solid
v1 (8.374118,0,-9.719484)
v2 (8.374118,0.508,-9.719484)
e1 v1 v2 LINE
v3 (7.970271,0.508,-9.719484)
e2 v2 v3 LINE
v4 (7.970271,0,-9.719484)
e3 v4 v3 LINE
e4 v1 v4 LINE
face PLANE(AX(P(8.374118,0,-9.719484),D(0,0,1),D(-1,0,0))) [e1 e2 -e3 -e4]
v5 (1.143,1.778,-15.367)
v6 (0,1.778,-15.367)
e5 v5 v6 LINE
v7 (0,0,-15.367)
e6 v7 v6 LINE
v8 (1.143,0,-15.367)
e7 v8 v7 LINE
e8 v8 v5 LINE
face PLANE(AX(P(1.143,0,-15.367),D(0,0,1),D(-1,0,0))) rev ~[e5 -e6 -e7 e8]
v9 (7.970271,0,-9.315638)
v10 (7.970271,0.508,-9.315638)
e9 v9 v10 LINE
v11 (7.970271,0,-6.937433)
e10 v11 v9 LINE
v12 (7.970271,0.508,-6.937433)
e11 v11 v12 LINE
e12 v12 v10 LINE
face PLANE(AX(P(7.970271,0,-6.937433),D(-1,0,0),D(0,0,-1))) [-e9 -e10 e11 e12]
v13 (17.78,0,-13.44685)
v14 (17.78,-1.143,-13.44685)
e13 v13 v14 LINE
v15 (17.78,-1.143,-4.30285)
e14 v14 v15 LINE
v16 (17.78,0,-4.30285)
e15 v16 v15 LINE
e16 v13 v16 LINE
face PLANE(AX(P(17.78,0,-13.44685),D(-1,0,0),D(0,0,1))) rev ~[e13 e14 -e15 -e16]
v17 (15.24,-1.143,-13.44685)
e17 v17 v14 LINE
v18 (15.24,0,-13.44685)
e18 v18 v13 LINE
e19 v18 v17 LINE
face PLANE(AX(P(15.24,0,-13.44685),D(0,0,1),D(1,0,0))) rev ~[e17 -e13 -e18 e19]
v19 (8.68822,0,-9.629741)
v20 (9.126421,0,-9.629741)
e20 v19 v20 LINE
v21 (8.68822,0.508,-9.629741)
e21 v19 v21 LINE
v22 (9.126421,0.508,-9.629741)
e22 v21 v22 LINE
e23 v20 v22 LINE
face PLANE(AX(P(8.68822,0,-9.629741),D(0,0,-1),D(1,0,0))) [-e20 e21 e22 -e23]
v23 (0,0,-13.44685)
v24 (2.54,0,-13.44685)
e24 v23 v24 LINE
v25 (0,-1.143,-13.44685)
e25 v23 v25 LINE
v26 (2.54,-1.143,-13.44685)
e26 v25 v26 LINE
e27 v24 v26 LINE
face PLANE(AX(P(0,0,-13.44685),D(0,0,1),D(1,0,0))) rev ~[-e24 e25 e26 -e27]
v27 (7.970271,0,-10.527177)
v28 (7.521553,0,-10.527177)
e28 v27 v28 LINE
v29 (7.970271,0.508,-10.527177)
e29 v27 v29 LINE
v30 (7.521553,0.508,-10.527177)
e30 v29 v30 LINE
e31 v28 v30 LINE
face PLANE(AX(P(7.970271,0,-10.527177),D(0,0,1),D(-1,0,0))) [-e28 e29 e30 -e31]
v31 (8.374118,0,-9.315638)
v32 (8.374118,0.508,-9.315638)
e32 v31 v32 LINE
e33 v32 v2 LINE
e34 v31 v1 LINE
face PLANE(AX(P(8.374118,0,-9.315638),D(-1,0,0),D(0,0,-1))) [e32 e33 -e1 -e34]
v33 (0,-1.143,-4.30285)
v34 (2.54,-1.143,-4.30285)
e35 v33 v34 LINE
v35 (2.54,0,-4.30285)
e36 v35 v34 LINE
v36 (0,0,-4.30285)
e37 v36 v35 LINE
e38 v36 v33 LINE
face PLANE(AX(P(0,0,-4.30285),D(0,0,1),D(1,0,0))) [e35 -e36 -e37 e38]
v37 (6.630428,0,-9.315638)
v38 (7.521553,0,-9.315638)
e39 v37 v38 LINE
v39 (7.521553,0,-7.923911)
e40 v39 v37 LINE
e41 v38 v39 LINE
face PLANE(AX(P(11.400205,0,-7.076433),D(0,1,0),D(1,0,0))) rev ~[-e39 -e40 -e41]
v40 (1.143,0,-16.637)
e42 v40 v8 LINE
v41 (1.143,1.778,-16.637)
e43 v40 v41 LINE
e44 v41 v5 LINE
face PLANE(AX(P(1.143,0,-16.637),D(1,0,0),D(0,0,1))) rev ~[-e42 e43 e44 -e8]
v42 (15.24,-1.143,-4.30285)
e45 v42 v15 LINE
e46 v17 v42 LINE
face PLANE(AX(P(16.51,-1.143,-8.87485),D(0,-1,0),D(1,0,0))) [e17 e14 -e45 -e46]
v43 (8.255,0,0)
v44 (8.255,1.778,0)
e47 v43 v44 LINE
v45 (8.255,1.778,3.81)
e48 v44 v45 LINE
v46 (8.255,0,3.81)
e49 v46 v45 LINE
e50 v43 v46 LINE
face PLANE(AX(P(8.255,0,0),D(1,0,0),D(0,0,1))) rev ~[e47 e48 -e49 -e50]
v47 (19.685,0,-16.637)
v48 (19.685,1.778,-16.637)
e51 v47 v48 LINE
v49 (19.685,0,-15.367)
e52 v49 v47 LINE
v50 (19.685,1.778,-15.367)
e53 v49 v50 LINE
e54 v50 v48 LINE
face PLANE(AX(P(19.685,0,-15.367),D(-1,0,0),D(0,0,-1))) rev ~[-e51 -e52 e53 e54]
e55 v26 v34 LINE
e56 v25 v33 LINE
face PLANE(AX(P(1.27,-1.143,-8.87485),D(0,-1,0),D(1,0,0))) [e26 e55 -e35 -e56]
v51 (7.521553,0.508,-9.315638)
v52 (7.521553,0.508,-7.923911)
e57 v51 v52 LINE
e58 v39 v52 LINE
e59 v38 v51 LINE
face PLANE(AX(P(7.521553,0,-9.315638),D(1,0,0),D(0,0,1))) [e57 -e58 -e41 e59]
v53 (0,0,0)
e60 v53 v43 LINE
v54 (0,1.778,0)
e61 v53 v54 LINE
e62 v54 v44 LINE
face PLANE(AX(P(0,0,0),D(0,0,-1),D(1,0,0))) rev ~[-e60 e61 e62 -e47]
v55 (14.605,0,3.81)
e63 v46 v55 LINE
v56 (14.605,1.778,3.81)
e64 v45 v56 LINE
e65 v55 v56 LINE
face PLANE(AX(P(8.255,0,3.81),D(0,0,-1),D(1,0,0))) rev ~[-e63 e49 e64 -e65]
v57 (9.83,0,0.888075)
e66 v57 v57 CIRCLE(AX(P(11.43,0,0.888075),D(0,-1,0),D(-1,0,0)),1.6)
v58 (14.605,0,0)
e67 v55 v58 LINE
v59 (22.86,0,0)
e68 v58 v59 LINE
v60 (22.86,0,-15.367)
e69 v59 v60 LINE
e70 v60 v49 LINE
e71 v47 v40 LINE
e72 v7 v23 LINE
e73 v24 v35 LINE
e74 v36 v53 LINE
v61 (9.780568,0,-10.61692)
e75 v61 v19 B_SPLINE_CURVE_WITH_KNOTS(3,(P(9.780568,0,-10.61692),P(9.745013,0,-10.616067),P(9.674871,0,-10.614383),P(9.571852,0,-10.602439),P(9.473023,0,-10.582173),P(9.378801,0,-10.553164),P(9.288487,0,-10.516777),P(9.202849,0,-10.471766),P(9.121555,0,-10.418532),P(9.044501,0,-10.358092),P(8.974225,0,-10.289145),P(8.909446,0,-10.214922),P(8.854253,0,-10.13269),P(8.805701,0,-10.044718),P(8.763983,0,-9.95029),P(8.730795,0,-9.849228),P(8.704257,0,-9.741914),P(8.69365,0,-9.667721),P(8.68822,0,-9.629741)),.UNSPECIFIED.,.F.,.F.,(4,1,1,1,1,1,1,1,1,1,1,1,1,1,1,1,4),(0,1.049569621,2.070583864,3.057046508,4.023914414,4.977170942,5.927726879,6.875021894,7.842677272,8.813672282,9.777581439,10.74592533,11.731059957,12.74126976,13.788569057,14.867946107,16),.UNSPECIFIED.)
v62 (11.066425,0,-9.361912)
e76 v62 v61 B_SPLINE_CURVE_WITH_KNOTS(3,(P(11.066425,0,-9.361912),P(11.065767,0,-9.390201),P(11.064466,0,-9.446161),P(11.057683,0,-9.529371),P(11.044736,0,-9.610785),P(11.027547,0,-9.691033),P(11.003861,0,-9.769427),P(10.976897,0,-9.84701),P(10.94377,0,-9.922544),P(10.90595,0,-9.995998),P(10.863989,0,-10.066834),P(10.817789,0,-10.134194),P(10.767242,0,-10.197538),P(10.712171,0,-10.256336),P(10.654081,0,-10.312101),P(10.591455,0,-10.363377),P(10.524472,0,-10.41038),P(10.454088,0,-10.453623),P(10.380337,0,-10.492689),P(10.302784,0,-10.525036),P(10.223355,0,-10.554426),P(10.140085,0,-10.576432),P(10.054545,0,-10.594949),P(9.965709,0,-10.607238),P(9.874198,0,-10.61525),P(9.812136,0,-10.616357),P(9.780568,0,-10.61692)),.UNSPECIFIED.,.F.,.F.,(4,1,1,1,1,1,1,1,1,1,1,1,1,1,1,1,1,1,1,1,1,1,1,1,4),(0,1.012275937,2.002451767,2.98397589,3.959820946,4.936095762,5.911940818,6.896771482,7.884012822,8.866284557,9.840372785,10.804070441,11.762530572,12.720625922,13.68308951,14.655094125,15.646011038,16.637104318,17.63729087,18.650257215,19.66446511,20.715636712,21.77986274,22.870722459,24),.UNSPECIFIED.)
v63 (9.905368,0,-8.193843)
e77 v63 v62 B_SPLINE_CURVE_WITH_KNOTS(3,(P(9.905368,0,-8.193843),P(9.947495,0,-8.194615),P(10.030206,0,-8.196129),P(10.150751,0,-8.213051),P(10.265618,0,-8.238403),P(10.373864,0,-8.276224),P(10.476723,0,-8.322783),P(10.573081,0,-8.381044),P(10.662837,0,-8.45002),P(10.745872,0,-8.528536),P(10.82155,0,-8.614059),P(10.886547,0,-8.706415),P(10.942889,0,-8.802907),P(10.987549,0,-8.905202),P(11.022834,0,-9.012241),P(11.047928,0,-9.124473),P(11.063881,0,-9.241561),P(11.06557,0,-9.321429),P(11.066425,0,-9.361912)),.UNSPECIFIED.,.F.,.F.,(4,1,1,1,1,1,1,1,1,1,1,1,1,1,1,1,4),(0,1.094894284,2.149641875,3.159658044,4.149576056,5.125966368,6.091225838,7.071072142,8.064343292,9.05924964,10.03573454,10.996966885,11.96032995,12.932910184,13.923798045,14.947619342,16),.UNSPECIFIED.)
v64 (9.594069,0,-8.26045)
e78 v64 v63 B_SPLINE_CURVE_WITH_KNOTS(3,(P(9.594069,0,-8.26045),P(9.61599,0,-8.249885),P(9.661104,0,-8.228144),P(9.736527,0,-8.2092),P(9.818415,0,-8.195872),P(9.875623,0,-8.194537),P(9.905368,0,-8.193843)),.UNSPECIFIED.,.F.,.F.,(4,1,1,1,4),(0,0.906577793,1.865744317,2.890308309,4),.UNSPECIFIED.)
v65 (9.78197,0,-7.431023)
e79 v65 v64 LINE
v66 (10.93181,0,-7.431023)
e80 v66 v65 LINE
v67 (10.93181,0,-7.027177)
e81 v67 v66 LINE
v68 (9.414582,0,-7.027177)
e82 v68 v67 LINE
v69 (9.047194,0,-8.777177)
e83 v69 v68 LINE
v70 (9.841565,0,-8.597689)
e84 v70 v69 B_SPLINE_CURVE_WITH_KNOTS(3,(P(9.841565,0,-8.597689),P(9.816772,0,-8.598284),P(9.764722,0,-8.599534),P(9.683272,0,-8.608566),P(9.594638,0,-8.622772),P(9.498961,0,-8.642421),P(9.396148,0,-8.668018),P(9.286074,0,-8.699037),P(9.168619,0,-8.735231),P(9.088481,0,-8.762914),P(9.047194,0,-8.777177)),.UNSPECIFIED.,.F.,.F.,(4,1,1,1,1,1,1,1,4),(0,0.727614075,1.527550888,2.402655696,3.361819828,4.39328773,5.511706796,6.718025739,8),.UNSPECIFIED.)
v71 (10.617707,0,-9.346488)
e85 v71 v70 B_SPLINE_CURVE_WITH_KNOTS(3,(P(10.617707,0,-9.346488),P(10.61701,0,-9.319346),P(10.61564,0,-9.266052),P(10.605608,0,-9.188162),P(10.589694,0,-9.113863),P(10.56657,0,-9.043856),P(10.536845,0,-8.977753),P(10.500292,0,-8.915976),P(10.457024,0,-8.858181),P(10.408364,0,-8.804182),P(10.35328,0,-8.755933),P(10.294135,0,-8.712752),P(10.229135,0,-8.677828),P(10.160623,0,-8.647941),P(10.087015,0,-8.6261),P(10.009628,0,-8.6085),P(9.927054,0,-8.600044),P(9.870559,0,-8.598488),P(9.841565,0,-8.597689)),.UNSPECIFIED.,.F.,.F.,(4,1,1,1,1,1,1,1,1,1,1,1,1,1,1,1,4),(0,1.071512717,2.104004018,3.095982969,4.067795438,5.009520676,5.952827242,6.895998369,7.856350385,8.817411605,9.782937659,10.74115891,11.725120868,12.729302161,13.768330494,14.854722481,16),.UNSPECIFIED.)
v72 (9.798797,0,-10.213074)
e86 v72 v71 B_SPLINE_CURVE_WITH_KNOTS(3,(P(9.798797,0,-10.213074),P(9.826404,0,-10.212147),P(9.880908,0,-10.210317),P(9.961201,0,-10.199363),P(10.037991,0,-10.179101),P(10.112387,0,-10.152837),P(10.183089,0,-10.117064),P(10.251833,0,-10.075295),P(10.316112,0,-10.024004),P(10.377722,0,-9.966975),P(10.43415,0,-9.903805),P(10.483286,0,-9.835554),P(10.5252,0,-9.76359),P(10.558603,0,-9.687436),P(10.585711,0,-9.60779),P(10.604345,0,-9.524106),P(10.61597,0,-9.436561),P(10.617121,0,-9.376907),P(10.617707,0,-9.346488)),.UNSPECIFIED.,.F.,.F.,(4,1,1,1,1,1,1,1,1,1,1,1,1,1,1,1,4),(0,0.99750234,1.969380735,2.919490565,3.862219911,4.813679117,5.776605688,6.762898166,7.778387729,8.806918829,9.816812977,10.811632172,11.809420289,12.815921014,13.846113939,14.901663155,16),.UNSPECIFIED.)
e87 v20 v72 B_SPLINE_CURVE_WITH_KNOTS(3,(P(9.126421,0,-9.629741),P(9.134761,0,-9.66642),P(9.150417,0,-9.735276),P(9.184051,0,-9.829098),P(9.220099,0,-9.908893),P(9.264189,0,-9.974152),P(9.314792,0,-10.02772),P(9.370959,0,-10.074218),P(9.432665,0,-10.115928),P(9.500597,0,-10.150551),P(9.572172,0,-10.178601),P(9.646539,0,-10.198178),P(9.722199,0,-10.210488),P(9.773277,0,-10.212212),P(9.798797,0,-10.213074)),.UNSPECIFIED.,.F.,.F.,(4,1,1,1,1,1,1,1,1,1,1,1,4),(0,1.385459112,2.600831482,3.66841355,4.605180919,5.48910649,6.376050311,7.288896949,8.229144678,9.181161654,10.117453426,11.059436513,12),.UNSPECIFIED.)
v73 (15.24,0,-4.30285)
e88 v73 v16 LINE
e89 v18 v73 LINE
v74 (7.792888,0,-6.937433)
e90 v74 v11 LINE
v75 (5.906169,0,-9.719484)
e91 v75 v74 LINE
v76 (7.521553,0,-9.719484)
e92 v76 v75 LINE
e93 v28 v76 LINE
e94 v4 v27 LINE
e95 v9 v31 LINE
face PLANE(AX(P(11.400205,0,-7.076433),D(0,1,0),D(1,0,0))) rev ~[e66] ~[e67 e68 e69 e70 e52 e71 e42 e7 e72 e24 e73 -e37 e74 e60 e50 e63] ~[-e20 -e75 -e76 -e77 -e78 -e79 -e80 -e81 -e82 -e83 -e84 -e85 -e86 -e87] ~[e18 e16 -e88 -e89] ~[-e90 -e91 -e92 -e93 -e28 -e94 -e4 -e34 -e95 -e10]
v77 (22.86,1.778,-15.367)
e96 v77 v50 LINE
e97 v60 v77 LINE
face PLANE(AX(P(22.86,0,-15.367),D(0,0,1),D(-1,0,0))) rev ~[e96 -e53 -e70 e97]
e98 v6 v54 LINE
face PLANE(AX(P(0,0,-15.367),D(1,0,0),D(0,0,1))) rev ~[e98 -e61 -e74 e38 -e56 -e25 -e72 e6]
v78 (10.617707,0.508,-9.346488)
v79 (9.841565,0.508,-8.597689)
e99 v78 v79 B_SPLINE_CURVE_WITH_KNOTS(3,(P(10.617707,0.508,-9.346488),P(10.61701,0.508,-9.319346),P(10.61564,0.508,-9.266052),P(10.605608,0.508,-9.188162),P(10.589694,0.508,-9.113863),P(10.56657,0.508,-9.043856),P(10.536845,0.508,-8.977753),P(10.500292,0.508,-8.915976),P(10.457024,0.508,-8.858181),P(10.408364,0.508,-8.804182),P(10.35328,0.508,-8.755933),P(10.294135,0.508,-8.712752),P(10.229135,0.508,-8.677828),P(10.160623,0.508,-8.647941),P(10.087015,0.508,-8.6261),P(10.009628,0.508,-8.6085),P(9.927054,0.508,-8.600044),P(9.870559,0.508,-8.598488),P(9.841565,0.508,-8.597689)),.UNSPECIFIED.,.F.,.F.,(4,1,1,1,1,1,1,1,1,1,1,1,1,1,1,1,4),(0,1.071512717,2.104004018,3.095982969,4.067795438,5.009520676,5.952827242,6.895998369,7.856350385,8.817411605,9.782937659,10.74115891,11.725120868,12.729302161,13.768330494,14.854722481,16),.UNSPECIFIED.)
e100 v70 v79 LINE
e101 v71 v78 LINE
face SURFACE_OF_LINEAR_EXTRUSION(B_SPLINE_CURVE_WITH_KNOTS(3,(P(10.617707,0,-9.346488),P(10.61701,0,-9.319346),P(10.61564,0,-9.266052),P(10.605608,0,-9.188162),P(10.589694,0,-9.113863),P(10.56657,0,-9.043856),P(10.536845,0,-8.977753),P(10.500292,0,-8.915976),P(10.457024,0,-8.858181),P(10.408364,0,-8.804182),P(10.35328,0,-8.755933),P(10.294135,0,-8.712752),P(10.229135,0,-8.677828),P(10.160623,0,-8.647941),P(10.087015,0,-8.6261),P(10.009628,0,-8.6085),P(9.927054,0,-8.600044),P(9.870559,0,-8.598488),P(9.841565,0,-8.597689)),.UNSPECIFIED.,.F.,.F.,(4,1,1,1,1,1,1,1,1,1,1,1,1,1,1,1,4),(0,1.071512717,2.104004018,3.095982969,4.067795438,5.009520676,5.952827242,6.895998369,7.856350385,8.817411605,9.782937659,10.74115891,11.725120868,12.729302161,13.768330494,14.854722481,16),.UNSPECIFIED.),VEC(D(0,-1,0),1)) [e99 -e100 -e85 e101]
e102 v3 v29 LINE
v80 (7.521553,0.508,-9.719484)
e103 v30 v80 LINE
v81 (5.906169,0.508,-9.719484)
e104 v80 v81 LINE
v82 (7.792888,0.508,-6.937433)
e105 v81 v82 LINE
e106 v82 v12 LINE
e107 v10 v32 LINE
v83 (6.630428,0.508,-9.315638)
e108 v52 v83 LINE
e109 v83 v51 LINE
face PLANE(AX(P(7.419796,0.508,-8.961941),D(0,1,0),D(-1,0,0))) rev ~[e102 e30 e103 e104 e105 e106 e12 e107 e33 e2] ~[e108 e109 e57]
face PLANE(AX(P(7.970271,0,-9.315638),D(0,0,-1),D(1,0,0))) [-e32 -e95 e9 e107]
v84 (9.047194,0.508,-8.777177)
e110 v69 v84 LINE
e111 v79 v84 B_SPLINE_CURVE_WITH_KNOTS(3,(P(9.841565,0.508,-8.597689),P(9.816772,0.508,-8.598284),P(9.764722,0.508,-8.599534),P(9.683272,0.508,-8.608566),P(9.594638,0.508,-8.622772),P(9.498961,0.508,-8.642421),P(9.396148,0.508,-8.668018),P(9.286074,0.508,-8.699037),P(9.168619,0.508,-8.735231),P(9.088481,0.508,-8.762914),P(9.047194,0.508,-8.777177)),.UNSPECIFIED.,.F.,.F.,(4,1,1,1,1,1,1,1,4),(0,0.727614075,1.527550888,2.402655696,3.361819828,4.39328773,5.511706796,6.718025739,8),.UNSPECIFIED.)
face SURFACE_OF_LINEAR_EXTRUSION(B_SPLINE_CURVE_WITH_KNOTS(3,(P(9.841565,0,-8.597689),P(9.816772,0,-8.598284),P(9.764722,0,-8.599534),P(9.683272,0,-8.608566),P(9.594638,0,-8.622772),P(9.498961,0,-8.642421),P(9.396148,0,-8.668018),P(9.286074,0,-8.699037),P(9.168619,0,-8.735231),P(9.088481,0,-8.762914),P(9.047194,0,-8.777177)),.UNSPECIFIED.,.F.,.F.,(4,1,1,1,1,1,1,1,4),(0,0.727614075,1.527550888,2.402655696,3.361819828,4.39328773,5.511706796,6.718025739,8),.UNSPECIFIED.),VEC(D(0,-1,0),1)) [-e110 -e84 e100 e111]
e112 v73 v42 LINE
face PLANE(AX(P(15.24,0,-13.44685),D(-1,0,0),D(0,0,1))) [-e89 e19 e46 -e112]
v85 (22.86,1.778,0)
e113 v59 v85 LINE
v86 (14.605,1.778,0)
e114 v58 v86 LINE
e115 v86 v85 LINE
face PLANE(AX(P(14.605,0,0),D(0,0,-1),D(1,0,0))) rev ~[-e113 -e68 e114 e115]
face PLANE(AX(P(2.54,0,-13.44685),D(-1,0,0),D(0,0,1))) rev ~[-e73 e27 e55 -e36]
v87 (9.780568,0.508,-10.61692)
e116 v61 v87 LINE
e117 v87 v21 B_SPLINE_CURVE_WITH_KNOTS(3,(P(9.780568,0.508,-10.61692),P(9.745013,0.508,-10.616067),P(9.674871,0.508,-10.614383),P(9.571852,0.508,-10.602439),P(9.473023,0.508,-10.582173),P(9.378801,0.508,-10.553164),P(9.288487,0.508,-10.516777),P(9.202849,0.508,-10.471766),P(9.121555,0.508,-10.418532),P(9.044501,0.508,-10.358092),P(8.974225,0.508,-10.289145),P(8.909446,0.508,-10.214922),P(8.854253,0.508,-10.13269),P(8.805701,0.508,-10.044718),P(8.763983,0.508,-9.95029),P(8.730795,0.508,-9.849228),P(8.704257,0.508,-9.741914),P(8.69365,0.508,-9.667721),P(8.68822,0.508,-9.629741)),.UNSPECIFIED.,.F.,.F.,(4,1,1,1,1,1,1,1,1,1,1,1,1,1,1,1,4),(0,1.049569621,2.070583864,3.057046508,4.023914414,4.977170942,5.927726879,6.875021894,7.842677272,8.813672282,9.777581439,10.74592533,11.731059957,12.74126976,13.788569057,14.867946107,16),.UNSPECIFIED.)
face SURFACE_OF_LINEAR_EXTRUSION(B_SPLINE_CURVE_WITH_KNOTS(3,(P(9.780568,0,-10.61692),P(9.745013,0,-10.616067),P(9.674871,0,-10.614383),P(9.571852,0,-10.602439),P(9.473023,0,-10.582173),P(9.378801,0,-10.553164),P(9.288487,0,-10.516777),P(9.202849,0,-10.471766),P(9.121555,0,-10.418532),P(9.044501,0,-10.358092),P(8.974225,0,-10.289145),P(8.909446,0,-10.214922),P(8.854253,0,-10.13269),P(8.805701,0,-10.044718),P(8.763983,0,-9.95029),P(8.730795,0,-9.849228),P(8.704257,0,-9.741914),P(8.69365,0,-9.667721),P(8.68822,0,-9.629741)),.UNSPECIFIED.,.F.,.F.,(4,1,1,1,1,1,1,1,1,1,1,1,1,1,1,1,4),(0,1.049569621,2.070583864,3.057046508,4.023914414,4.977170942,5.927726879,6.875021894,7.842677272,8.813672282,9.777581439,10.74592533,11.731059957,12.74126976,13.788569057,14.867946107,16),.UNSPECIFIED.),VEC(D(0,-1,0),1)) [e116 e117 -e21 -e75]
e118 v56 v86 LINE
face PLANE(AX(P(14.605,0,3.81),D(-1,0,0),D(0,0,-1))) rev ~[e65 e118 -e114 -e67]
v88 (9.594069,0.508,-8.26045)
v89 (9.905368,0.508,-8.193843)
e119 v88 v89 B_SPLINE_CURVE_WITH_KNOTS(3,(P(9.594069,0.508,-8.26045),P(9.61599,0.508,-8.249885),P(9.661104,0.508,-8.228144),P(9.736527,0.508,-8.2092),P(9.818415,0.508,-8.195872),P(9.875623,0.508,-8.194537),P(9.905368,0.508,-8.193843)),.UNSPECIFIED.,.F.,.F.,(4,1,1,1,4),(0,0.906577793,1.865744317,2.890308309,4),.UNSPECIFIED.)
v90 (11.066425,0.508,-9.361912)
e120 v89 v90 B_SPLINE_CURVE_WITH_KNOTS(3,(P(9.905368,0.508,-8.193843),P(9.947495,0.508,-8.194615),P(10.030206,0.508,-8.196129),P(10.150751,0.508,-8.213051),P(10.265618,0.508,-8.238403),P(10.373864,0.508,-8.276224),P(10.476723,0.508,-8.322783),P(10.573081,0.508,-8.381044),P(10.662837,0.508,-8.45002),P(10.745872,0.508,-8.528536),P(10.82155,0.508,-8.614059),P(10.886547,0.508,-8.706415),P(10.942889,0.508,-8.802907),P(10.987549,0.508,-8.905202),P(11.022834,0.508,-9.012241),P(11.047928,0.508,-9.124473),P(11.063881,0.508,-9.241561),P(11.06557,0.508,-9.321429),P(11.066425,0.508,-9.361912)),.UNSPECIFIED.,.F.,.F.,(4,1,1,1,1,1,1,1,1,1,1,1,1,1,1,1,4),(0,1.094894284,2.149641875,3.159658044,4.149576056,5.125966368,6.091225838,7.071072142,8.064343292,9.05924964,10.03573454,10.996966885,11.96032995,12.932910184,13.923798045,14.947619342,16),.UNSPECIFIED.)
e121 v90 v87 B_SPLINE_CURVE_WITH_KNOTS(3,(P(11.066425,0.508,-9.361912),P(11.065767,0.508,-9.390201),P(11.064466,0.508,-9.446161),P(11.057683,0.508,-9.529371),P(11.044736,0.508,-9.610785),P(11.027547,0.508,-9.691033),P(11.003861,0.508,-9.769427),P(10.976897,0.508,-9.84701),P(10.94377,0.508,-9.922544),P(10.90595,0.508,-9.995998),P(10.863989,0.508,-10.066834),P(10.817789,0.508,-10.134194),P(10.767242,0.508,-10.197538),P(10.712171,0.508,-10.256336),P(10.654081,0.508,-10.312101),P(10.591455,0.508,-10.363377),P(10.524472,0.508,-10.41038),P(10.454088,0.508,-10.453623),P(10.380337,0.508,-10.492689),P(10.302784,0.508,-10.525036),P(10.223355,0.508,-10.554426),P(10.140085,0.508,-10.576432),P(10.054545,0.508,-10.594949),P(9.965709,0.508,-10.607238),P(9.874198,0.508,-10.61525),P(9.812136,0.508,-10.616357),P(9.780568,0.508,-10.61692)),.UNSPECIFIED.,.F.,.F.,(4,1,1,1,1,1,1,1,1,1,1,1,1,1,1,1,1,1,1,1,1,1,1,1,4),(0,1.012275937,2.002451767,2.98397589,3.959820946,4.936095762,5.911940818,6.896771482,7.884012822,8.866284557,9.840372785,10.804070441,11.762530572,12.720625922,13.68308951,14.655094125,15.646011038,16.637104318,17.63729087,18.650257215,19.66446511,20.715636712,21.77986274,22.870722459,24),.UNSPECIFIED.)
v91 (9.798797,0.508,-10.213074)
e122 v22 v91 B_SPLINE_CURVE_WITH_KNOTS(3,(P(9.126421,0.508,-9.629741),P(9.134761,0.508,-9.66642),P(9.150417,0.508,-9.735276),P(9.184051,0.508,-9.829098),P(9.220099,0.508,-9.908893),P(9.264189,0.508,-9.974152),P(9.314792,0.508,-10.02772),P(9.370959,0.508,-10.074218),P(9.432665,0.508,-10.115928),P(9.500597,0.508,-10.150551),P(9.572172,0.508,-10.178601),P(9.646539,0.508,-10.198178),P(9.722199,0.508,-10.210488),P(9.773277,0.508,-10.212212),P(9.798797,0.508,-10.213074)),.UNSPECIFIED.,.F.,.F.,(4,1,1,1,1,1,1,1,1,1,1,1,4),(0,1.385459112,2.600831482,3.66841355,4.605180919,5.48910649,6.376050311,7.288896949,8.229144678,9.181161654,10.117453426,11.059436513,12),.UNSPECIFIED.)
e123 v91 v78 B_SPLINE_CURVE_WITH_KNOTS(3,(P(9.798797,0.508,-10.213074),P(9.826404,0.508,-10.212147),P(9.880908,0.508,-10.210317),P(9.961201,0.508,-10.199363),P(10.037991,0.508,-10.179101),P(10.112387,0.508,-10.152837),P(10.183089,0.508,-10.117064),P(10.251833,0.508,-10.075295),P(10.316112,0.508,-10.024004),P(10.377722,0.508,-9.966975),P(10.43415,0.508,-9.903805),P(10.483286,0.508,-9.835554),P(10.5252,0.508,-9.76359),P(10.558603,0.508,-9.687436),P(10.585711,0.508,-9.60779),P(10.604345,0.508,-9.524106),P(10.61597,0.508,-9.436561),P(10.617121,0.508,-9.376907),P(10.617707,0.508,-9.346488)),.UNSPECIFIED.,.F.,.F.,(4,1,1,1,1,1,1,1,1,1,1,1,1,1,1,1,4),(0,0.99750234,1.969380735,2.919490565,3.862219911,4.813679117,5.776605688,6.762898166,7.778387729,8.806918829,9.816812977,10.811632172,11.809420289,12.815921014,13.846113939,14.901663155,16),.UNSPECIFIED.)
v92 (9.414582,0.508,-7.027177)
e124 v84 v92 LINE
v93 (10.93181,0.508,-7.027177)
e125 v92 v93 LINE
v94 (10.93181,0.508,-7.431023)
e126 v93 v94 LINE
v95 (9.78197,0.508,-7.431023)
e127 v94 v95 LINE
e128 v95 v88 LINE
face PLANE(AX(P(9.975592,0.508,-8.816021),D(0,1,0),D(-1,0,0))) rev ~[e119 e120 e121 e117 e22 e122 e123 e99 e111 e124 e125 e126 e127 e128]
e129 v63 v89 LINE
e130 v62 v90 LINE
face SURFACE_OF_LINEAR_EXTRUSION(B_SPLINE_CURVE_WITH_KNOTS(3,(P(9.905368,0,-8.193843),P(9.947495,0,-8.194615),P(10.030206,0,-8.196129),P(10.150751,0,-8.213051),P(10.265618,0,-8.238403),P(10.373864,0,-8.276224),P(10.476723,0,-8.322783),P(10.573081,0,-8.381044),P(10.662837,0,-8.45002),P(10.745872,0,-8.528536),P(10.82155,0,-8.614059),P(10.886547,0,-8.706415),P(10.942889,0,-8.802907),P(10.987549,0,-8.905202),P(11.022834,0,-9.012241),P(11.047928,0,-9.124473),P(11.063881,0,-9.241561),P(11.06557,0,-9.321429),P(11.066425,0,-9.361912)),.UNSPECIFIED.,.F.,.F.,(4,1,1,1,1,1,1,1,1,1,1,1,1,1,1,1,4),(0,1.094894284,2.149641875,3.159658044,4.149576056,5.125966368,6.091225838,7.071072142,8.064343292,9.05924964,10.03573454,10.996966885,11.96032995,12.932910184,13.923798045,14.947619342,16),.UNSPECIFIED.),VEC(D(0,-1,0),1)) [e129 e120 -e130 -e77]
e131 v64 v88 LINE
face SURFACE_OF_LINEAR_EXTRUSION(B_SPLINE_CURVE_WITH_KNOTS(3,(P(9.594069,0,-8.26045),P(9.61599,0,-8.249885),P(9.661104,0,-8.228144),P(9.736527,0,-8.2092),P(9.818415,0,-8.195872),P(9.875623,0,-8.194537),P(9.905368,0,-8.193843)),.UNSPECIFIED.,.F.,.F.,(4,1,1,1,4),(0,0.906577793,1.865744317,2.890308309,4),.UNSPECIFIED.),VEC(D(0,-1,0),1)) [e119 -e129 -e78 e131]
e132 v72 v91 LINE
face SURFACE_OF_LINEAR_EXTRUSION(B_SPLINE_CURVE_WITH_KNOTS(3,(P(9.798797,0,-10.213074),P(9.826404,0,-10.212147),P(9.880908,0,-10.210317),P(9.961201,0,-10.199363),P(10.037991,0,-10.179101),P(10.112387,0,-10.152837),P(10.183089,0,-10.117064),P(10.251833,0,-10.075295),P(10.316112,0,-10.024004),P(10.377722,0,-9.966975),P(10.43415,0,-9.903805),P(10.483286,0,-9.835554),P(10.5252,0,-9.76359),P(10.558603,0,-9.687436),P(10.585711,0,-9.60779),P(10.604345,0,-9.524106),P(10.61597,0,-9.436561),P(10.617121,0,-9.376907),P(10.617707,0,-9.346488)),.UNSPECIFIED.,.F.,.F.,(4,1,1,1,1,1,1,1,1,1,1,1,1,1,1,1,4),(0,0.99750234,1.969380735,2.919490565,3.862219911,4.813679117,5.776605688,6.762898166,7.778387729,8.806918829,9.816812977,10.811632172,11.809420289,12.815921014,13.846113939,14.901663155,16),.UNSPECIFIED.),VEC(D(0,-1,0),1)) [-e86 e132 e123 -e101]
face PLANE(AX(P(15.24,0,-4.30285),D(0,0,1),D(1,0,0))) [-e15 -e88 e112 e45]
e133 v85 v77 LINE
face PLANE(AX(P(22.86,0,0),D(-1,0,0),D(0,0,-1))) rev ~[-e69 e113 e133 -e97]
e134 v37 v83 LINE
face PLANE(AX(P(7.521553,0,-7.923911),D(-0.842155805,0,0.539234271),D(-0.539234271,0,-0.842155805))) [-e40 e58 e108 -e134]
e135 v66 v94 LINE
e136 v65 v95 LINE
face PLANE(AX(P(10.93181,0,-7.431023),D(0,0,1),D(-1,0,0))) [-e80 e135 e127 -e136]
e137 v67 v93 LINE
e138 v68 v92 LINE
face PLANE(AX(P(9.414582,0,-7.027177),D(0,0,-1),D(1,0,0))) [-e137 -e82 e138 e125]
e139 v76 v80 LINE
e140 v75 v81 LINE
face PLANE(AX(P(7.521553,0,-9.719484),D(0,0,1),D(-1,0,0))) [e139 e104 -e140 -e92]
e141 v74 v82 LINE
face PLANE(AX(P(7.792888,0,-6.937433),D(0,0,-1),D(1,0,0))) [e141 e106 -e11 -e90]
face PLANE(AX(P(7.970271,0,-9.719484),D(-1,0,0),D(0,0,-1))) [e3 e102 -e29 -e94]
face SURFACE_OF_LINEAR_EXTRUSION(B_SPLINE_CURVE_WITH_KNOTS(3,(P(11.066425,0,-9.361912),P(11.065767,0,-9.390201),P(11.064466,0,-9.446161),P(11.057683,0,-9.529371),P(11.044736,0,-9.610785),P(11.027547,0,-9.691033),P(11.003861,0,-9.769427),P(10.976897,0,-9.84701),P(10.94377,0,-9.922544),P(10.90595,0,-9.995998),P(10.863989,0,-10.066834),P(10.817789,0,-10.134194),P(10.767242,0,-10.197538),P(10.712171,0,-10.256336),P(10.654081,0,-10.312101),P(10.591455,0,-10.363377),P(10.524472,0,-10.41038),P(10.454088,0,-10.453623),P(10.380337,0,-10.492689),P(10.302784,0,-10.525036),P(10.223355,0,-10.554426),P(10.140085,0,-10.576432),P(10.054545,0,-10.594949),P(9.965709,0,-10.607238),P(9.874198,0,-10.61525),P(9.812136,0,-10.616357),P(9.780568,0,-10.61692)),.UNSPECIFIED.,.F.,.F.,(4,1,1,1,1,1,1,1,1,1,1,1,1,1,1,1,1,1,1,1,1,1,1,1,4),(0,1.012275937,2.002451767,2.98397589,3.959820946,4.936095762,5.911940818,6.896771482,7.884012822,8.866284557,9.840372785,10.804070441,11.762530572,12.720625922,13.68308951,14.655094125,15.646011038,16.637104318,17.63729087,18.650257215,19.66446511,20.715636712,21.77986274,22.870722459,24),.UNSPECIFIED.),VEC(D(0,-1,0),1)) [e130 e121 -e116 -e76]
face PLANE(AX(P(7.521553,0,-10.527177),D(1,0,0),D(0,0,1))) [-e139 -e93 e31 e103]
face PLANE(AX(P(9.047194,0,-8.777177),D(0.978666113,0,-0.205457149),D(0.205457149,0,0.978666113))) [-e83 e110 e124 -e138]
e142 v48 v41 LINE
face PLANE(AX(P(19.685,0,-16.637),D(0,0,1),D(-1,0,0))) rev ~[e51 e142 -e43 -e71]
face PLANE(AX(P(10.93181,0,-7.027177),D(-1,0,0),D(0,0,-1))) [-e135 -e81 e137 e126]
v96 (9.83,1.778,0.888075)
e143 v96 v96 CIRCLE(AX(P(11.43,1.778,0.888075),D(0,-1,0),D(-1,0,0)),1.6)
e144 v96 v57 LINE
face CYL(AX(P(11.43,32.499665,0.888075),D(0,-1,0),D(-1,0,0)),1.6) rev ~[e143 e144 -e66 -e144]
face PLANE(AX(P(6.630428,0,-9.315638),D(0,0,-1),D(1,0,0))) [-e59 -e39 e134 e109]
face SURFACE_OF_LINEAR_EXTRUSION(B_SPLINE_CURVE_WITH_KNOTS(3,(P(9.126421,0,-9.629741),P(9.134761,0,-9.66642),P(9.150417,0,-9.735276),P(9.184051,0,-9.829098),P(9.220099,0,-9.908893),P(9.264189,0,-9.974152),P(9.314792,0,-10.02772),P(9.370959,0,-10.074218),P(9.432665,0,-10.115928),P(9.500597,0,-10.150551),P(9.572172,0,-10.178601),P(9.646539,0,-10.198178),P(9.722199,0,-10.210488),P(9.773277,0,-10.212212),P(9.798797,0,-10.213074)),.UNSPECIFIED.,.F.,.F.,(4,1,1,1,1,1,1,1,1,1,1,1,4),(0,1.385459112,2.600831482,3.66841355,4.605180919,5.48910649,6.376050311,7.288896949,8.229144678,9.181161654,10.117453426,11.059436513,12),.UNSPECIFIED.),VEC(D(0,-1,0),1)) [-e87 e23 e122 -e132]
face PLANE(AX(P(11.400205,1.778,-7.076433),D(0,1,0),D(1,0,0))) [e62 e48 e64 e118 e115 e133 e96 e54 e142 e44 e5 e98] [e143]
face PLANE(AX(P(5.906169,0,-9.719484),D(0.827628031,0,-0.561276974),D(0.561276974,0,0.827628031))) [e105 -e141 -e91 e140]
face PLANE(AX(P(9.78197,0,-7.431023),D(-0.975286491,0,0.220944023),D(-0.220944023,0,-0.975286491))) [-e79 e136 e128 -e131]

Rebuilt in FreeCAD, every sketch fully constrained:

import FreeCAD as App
import Part
import Sketcher
Q = App.Units.Quantity

doc = App.newDocument("Part")
body = doc.addObject("PartDesign::Body", "Body")

# Sketch on XZ plane
sketch1 = body.newObject("Sketcher::SketchObject", "Sketch")
sketch1.AttachmentSupport = (doc.getObject("XZ_Plane"), [""])
sketch1.MapMode = "FlatFace"
sketch1.addGeometry(Part.LineSegment(App.Vector(0, -15.4, 0), App.Vector(0, 0, 0)), False)
sketch1.addGeometry(Part.LineSegment(App.Vector(0, 0, 0), App.Vector(8.3, 0, 0)), False)
sketch1.addGeometry(Part.LineSegment(App.Vector(8.3, 0, 0), App.Vector(8.3, 3.8, 0)), False)
sketch1.addGeometry(Part.LineSegment(App.Vector(8.3, 3.8, 0), App.Vector(14.6, 3.8, 0)), False)
sketch1.addGeometry(Part.LineSegment(App.Vector(14.6, 3.8, 0), App.Vector(14.6, 0, 0)), False)
sketch1.addGeometry(Part.LineSegment(App.Vector(14.6, 0, 0), App.Vector(22.9, 0, 0)), False)
sketch1.addGeometry(Part.LineSegment(App.Vector(22.9, 0, 0), App.Vector(22.9, -15.4, 0)), False)
sketch1.addGeometry(Part.LineSegment(App.Vector(22.9, -15.4, 0), App.Vector(19.7, -15.4, 0)), False)
sketch1.addGeometry(Part.LineSegment(App.Vector(19.7, -15.4, 0), App.Vector(19.7, -16.6, 0)), False)
sketch1.addGeometry(Part.LineSegment(App.Vector(19.7, -16.6, 0), App.Vector(1.1, -16.6, 0)), False)
sketch1.addGeometry(Part.LineSegment(App.Vector(1.1, -16.6, 0), App.Vector(1.1, -15.4, 0)), False)
sketch1.addGeometry(Part.LineSegment(App.Vector(1.1, -15.4, 0), App.Vector(0, -15.4, 0)), False)
sketch1.addConstraint(Sketcher.Constraint("Coincident", 0, 2, 1, 1))
sketch1.addConstraint(Sketcher.Constraint("Coincident", 1, 2, 2, 1))
sketch1.addConstraint(Sketcher.Constraint("Coincident", 2, 2, 3, 1))
sketch1.addConstraint(Sketcher.Constraint("Coincident", 3, 2, 4, 1))
sketch1.addConstraint(Sketcher.Constraint("Coincident", 4, 2, 5, 1))
sketch1.addConstraint(Sketcher.Constraint("Coincident", 5, 2, 6, 1))
sketch1.addConstraint(Sketcher.Constraint("Coincident", 6, 2, 7, 1))
sketch1.addConstraint(Sketcher.Constraint("Coincident", 7, 2, 8, 1))
sketch1.addConstraint(Sketcher.Constraint("Coincident", 8, 2, 9, 1))
sketch1.addConstraint(Sketcher.Constraint("Coincident", 9, 2, 10, 1))
sketch1.addConstraint(Sketcher.Constraint("Coincident", 10, 2, 11, 1))
sketch1.addConstraint(Sketcher.Constraint("Coincident", 11, 2, 0, 1))
sketch1.addConstraint(Sketcher.Constraint("Vertical", 0))
sketch1.addConstraint(Sketcher.Constraint("Horizontal", 1))
sketch1.addConstraint(Sketcher.Constraint("Vertical", 2))
sketch1.addConstraint(Sketcher.Constraint("Horizontal", 3))
sketch1.addConstraint(Sketcher.Constraint("Vertical", 4))
sketch1.addConstraint(Sketcher.Constraint("Horizontal", 5))
sketch1.addConstraint(Sketcher.Constraint("Vertical", 6))
sketch1.addConstraint(Sketcher.Constraint("Horizontal", 7))
sketch1.addConstraint(Sketcher.Constraint("Vertical", 8))
sketch1.addConstraint(Sketcher.Constraint("Horizontal", 9))
sketch1.addConstraint(Sketcher.Constraint("Vertical", 10))
sketch1.addConstraint(Sketcher.Constraint("Horizontal", 11))
sketch1.addConstraint(Sketcher.Constraint("Coincident", 0, 2, -1, 1))
sketch1.addConstraint(Sketcher.Constraint("PointOnObject", 4, 2, -1))
sketch1.addConstraint(Sketcher.Constraint("Horizontal", 7, 2, 10, 2))
sketch1.addConstraint(Sketcher.Constraint("Equal", 1, 5))
sketch1.addConstraint(Sketcher.Constraint("DistanceX", 3, 1, 3, 2, Q("0.25 in")))
sketch1.addConstraint(Sketcher.Constraint("DistanceX", 9, 2, 9, 1, Q("0.73 in")))
sketch1.addConstraint(Sketcher.Constraint("DistanceY", 2, 1, 2, 2, Q("0.15 in")))
sketch1.addConstraint(Sketcher.Constraint("DistanceY", 8, 2, 8, 1, Q("0.05 in")))
sketch1.addConstraint(Sketcher.Constraint("DistanceX", -1, 1, 5, 2, Q("0.9 in")))
sketch1.addConstraint(Sketcher.Constraint("DistanceX", 4, 2, 7, 2, Q("0.2 in")))
sketch1.addConstraint(Sketcher.Constraint("DistanceY", 0, 1, 0, 2, Q("0.605 in")))
pad1 = body.newObject("PartDesign::Pad", "Pad")
pad1.Profile = sketch1
pad1.Length = Q("0.07 in")
pad1.Reversed = True

# Sketch on XZ plane
sketch2 = body.newObject("Sketcher::SketchObject", "Sketch001")
sketch2.AttachmentSupport = (doc.getObject("XZ_Plane"), [""])
sketch2.MapMode = "FlatFace"
sketch2.AttachmentOffset = App.Placement(App.Vector(0, 0, -0.07 * 25.4), App.Rotation())
sketch2.addGeometry(Part.Circle(App.Vector(11.4, 0.9, 0), App.Vector(0, 0, 1), 1.6), False)
sketch2.addConstraint(Sketcher.Constraint("Diameter", 0, Q("3.2 mm")))
sketch2.addConstraint(Sketcher.Constraint("DistanceX", -1, 1, 0, 3, Q("0.45 in")))
sketch2.addConstraint(Sketcher.Constraint("DistanceY", -1, 1, 0, 3, Q("0.888075 mm")))
doc.recompute()
hole = body.newObject("PartDesign::Hole", "Hole")
hole.Profile = sketch2
hole.ThreadType = "None"
hole.Diameter = 3.2
hole.DepthType = "ThroughAll"
hole.Reversed = True

# Sketch on XZ plane
sketch3 = body.newObject("Sketcher::SketchObject", "Sketch002")
sketch3.AttachmentSupport = (doc.getObject("XZ_Plane"), [""])
sketch3.MapMode = "FlatFace"
sketch3.addGeometry(Part.LineSegment(App.Vector(15.2, -4.3, 0), App.Vector(15.2, -13.4, 0)), False)
sketch3.addGeometry(Part.LineSegment(App.Vector(15.2, -13.4, 0), App.Vector(17.8, -13.4, 0)), False)
sketch3.addGeometry(Part.LineSegment(App.Vector(17.8, -13.4, 0), App.Vector(17.8, -4.3, 0)), False)
sketch3.addGeometry(Part.LineSegment(App.Vector(17.8, -4.3, 0), App.Vector(15.2, -4.3, 0)), False)
sketch3.addGeometry(Part.LineSegment(App.Vector(0, -4.3, 0), App.Vector(0, -13.4, 0)), False)
sketch3.addGeometry(Part.LineSegment(App.Vector(0, -13.4, 0), App.Vector(2.5, -13.4, 0)), False)
sketch3.addGeometry(Part.LineSegment(App.Vector(2.5, -13.4, 0), App.Vector(2.5, -4.3, 0)), False)
sketch3.addGeometry(Part.LineSegment(App.Vector(2.5, -4.3, 0), App.Vector(0, -4.3, 0)), False)
sketch3.addConstraint(Sketcher.Constraint("Coincident", 0, 2, 1, 1))
sketch3.addConstraint(Sketcher.Constraint("Coincident", 1, 2, 2, 1))
sketch3.addConstraint(Sketcher.Constraint("Coincident", 2, 2, 3, 1))
sketch3.addConstraint(Sketcher.Constraint("Coincident", 3, 2, 0, 1))
sketch3.addConstraint(Sketcher.Constraint("Coincident", 4, 2, 5, 1))
sketch3.addConstraint(Sketcher.Constraint("Coincident", 5, 2, 6, 1))
sketch3.addConstraint(Sketcher.Constraint("Coincident", 6, 2, 7, 1))
sketch3.addConstraint(Sketcher.Constraint("Coincident", 7, 2, 4, 1))
sketch3.addConstraint(Sketcher.Constraint("Vertical", 0))
sketch3.addConstraint(Sketcher.Constraint("Horizontal", 1))
sketch3.addConstraint(Sketcher.Constraint("Vertical", 2))
sketch3.addConstraint(Sketcher.Constraint("Horizontal", 3))
sketch3.addConstraint(Sketcher.Constraint("Vertical", 4))
sketch3.addConstraint(Sketcher.Constraint("Horizontal", 5))
sketch3.addConstraint(Sketcher.Constraint("Vertical", 6))
sketch3.addConstraint(Sketcher.Constraint("Horizontal", 7))
sketch3.addConstraint(Sketcher.Constraint("PointOnObject", 4, 2, -2))
sketch3.addConstraint(Sketcher.Constraint("Horizontal", 1, 2, 4, 2))
sketch3.addConstraint(Sketcher.Constraint("Horizontal", 3, 2, 6, 2))
sketch3.addConstraint(Sketcher.Constraint("Equal", 3, 5))
sketch3.addConstraint(Sketcher.Constraint("DistanceX", 1, 1, 1, 2, Q("0.1 in")))
sketch3.addConstraint(Sketcher.Constraint("DistanceY", 0, 2, 0, 1, Q("0.36 in")))
sketch3.addConstraint(Sketcher.Constraint("DistanceX", -1, 1, 0, 2, Q("0.6 in")))
sketch3.addConstraint(Sketcher.Constraint("DistanceY", 0, 2, -1, 1, Q("13.44685 mm")))
pad2 = body.newObject("PartDesign::Pad", "Pad001")
pad2.Profile = sketch3
pad2.Length = Q("0.045 in")

# Sketch on XZ plane
sketch4 = body.newObject("Sketcher::SketchObject", "Sketch003")
sketch4.AttachmentSupport = (doc.getObject("XZ_Plane"), [""])
sketch4.MapMode = "FlatFace"
sketch4.addGeometry(Part.LineSegment(App.Vector(7.970271, -6.937433, 0), App.Vector(7.792888, -6.937433, 0)), False)
sketch4.addGeometry(Part.LineSegment(App.Vector(7.792888, -6.937433, 0), App.Vector(5.906169, -9.719484, 0)), False)
sketch4.addGeometry(Part.LineSegment(App.Vector(5.906169, -9.719484, 0), App.Vector(7.521553, -9.719484, 0)), False)
sketch4.addGeometry(Part.LineSegment(App.Vector(7.521553, -9.719484, 0), App.Vector(7.521553, -10.527177, 0)), False)
sketch4.addGeometry(Part.LineSegment(App.Vector(7.521553, -10.527177, 0), App.Vector(7.970271, -10.527177, 0)), False)
sketch4.addGeometry(Part.LineSegment(App.Vector(7.970271, -10.527177, 0), App.Vector(7.970271, -9.719484, 0)), False)
sketch4.addGeometry(Part.LineSegment(App.Vector(7.970271, -9.719484, 0), App.Vector(8.374118, -9.719484, 0)), False)
sketch4.addGeometry(Part.LineSegment(App.Vector(8.374118, -9.719484, 0), App.Vector(8.374118, -9.315638, 0)), False)
sketch4.addGeometry(Part.LineSegment(App.Vector(8.374118, -9.315638, 0), App.Vector(7.970271, -9.315638, 0)), False)
sketch4.addGeometry(Part.LineSegment(App.Vector(7.970271, -9.315638, 0), App.Vector(7.970271, -6.937433, 0)), False)
sketch4.addGeometry(Part.LineSegment(App.Vector(7.521553, -9.315638, 0), App.Vector(6.630428, -9.315638, 0)), False)
sketch4.addGeometry(Part.LineSegment(App.Vector(6.630428, -9.315638, 0), App.Vector(7.521553, -7.923911, 0)), False)
sketch4.addGeometry(Part.LineSegment(App.Vector(7.521553, -7.923911, 0), App.Vector(7.521553, -9.315638, 0)), False)
sketch4.addGeometry(Part.LineSegment(App.Vector(10.93181, -7.431023, 0), App.Vector(10.93181, -7.027177, 0)), False)
sketch4.addGeometry(Part.LineSegment(App.Vector(10.93181, -7.027177, 0), App.Vector(9.414582, -7.027177, 0)), False)
sketch4.addGeometry(Part.LineSegment(App.Vector(9.414582, -7.027177, 0), App.Vector(9.047194, -8.777177, 0)), False)
sketch4.addGeometry(Part.BSplineCurve([App.Vector(9.841565, -8.597689, 0), App.Vector(9.816772, -8.598284, 0), App.Vector(9.764722, -8.599534, 0), App.Vector(9.683272, -8.608566, 0), App.Vector(9.594638, -8.622772, 0), App.Vector(9.498961, -8.642421, 0), App.Vector(9.396148, -8.668018, 0), App.Vector(9.286074, -8.699037, 0), App.Vector(9.168619, -8.735231, 0), App.Vector(9.088481, -8.762914, 0), App.Vector(9.047194, -8.777177, 0)], [4, 1, 1, 1, 1, 1, 1, 1, 4], [0, 0.727614075, 1.527550888, 2.402655696, 3.361819828, 4.39328773, 5.511706796, 6.718025739, 8], False, 3, [1, 1, 1, 1, 1, 1, 1, 1, 1, 1, 1], False), False)
sketch4.addGeometry(Part.BSplineCurve([App.Vector(10.617707, -9.346488, 0), App.Vector(10.61701, -9.319346, 0), App.Vector(10.61564, -9.266052, 0), App.Vector(10.605608, -9.188162, 0), App.Vector(10.589694, -9.113863, 0), App.Vector(10.56657, -9.043856, 0), App.Vector(10.536845, -8.977753, 0), App.Vector(10.500292, -8.915976, 0), App.Vector(10.457024, -8.858181, 0), App.Vector(10.408364, -8.804182, 0), App.Vector(10.35328, -8.755933, 0), App.Vector(10.294135, -8.712752, 0), App.Vector(10.229135, -8.677828, 0), App.Vector(10.160623, -8.647941, 0), App.Vector(10.087015, -8.6261, 0), App.Vector(10.009628, -8.6085, 0), App.Vector(9.927054, -8.600044, 0), App.Vector(9.870559, -8.598488, 0), App.Vector(9.841565, -8.597689, 0)], [4, 1, 1, 1, 1, 1, 1, 1, 1, 1, 1, 1, 1, 1, 1, 1, 4], [0, 1.071512717, 2.104004018, 3.095982969, 4.067795438, 5.009520676, 5.952827242, 6.895998369, 7.856350385, 8.817411605, 9.782937659, 10.74115891, 11.725120868, 12.729302161, 13.768330494, 14.854722481, 16], False, 3, [1, 1, 1, 1, 1, 1, 1, 1, 1, 1, 1, 1, 1, 1, 1, 1, 1, 1, 1], False), False)
sketch4.addGeometry(Part.BSplineCurve([App.Vector(9.798797, -10.213074, 0), App.Vector(9.826404, -10.212147, 0), App.Vector(9.880908, -10.210317, 0), App.Vector(9.961201, -10.199363, 0), App.Vector(10.037991, -10.179101, 0), App.Vector(10.112387, -10.152837, 0), App.Vector(10.183089, -10.117064, 0), App.Vector(10.251833, -10.075295, 0), App.Vector(10.316112, -10.024004, 0), App.Vector(10.377722, -9.966975, 0), App.Vector(10.43415, -9.903805, 0), App.Vector(10.483286, -9.835554, 0), App.Vector(10.5252, -9.76359, 0), App.Vector(10.558603, -9.687436, 0), App.Vector(10.585711, -9.60779, 0), App.Vector(10.604345, -9.524106, 0), App.Vector(10.61597, -9.436561, 0), App.Vector(10.617121, -9.376907, 0), App.Vector(10.617707, -9.346488, 0)], [4, 1, 1, 1, 1, 1, 1, 1, 1, 1, 1, 1, 1, 1, 1, 1, 4], [0, 0.99750234, 1.969380735, 2.919490565, 3.862219911, 4.813679117, 5.776605688, 6.762898166, 7.778387729, 8.806918829, 9.816812977, 10.811632172, 11.809420289, 12.815921014, 13.846113939, 14.901663155, 16], False, 3, [1, 1, 1, 1, 1, 1, 1, 1, 1, 1, 1, 1, 1, 1, 1, 1, 1, 1, 1], False), False)
sketch4.addGeometry(Part.BSplineCurve([App.Vector(9.126421, -9.629741, 0), App.Vector(9.134761, -9.66642, 0), App.Vector(9.150417, -9.735276, 0), App.Vector(9.184051, -9.829098, 0), App.Vector(9.220099, -9.908893, 0), App.Vector(9.264189, -9.974152, 0), App.Vector(9.314792, -10.02772, 0), App.Vector(9.370959, -10.074218, 0), App.Vector(9.432665, -10.115928, 0), App.Vector(9.500597, -10.150551, 0), App.Vector(9.572172, -10.178601, 0), App.Vector(9.646539, -10.198178, 0), App.Vector(9.722199, -10.210488, 0), App.Vector(9.773277, -10.212212, 0), App.Vector(9.798797, -10.213074, 0)], [4, 1, 1, 1, 1, 1, 1, 1, 1, 1, 1, 1, 4], [0, 1.385459112, 2.600831482, 3.66841355, 4.605180919, 5.48910649, 6.376050311, 7.288896949, 8.229144678, 9.181161654, 10.117453426, 11.059436513, 12], False, 3, [1, 1, 1, 1, 1, 1, 1, 1, 1, 1, 1, 1, 1, 1, 1], False), False)
sketch4.addGeometry(Part.LineSegment(App.Vector(9.126421, -9.629741, 0), App.Vector(8.68822, -9.629741, 0)), False)
sketch4.addGeometry(Part.BSplineCurve([App.Vector(9.780568, -10.61692, 0), App.Vector(9.745013, -10.616067, 0), App.Vector(9.674871, -10.614383, 0), App.Vector(9.571852, -10.602439, 0), App.Vector(9.473023, -10.582173, 0), App.Vector(9.378801, -10.553164, 0), App.Vector(9.288487, -10.516777, 0), App.Vector(9.202849, -10.471766, 0), App.Vector(9.121555, -10.418532, 0), App.Vector(9.044501, -10.358092, 0), App.Vector(8.974225, -10.289145, 0), App.Vector(8.909446, -10.214922, 0), App.Vector(8.854253, -10.13269, 0), App.Vector(8.805701, -10.044718, 0), App.Vector(8.763983, -9.95029, 0), App.Vector(8.730795, -9.849228, 0), App.Vector(8.704257, -9.741914, 0), App.Vector(8.69365, -9.667721, 0), App.Vector(8.68822, -9.629741, 0)], [4, 1, 1, 1, 1, 1, 1, 1, 1, 1, 1, 1, 1, 1, 1, 1, 4], [0, 1.049569621, 2.070583864, 3.057046508, 4.023914414, 4.977170942, 5.927726879, 6.875021894, 7.842677272, 8.813672282, 9.777581439, 10.74592533, 11.731059957, 12.74126976, 13.788569057, 14.867946107, 16], False, 3, [1, 1, 1, 1, 1, 1, 1, 1, 1, 1, 1, 1, 1, 1, 1, 1, 1, 1, 1], False), False)
sketch4.addGeometry(Part.BSplineCurve([App.Vector(11.066425, -9.361912, 0), App.Vector(11.065767, -9.390201, 0), App.Vector(11.064466, -9.446161, 0), App.Vector(11.057683, -9.529371, 0), App.Vector(11.044736, -9.610785, 0), App.Vector(11.027547, -9.691033, 0), App.Vector(11.003861, -9.769427, 0), App.Vector(10.976897, -9.84701, 0), App.Vector(10.94377, -9.922544, 0), App.Vector(10.90595, -9.995998, 0), App.Vector(10.863989, -10.066834, 0), App.Vector(10.817789, -10.134194, 0), App.Vector(10.767242, -10.197538, 0), App.Vector(10.712171, -10.256336, 0), App.Vector(10.654081, -10.312101, 0), App.Vector(10.591455, -10.363377, 0), App.Vector(10.524472, -10.41038, 0), App.Vector(10.454088, -10.453623, 0), App.Vector(10.380337, -10.492689, 0), App.Vector(10.302784, -10.525036, 0), App.Vector(10.223355, -10.554426, 0), App.Vector(10.140085, -10.576432, 0), App.Vector(10.054545, -10.594949, 0), App.Vector(9.965709, -10.607238, 0), App.Vector(9.874198, -10.61525, 0), App.Vector(9.812136, -10.616357, 0), App.Vector(9.780568, -10.61692, 0)], [4, 1, 1, 1, 1, 1, 1, 1, 1, 1, 1, 1, 1, 1, 1, 1, 1, 1, 1, 1, 1, 1, 1, 1, 4], [0, 1.012275937, 2.002451767, 2.98397589, 3.959820946, 4.936095762, 5.911940818, 6.896771482, 7.884012822, 8.866284557, 9.840372785, 10.804070441, 11.762530572, 12.720625922, 13.68308951, 14.655094125, 15.646011038, 16.637104318, 17.63729087, 18.650257215, 19.66446511, 20.715636712, 21.77986274, 22.870722459, 24], False, 3, [1, 1, 1, 1, 1, 1, 1, 1, 1, 1, 1, 1, 1, 1, 1, 1, 1, 1, 1, 1, 1, 1, 1, 1, 1, 1, 1], False), False)
sketch4.addGeometry(Part.BSplineCurve([App.Vector(9.905368, -8.193843, 0), App.Vector(9.947495, -8.194615, 0), App.Vector(10.030206, -8.196129, 0), App.Vector(10.150751, -8.213051, 0), App.Vector(10.265618, -8.238403, 0), App.Vector(10.373864, -8.276224, 0), App.Vector(10.476723, -8.322783, 0), App.Vector(10.573081, -8.381044, 0), App.Vector(10.662837, -8.45002, 0), App.Vector(10.745872, -8.528536, 0), App.Vector(10.82155, -8.614059, 0), App.Vector(10.886547, -8.706415, 0), App.Vector(10.942889, -8.802907, 0), App.Vector(10.987549, -8.905202, 0), App.Vector(11.022834, -9.012241, 0), App.Vector(11.047928, -9.124473, 0), App.Vector(11.063881, -9.241561, 0), App.Vector(11.06557, -9.321429, 0), App.Vector(11.066425, -9.361912, 0)], [4, 1, 1, 1, 1, 1, 1, 1, 1, 1, 1, 1, 1, 1, 1, 1, 4], [0, 1.094894284, 2.149641875, 3.159658044, 4.149576056, 5.125966368, 6.091225838, 7.071072142, 8.064343292, 9.05924964, 10.03573454, 10.996966885, 11.96032995, 12.932910184, 13.923798045, 14.947619342, 16], False, 3, [1, 1, 1, 1, 1, 1, 1, 1, 1, 1, 1, 1, 1, 1, 1, 1, 1, 1, 1], False), False)
sketch4.addGeometry(Part.BSplineCurve([App.Vector(9.594069, -8.26045, 0), App.Vector(9.61599, -8.249885, 0), App.Vector(9.661104, -8.228144, 0), App.Vector(9.736527, -8.2092, 0), App.Vector(9.818415, -8.195872, 0), App.Vector(9.875623, -8.194537, 0), App.Vector(9.905368, -8.193843, 0)], [4, 1, 1, 1, 4], [0, 0.906577793, 1.865744317, 2.890308309, 4], False, 3, [1, 1, 1, 1, 1, 1, 1], False), False)
sketch4.addGeometry(Part.LineSegment(App.Vector(9.594069, -8.26045, 0), App.Vector(9.78197, -7.431023, 0)), False)
sketch4.addGeometry(Part.LineSegment(App.Vector(9.78197, -7.431023, 0), App.Vector(10.93181, -7.431023, 0)), False)
sketch4.addConstraint(Sketcher.Constraint("Block", 16))
sketch4.addConstraint(Sketcher.Constraint("Block", 17))
sketch4.addConstraint(Sketcher.Constraint("Block", 18))
sketch4.addConstraint(Sketcher.Constraint("Block", 19))
sketch4.addConstraint(Sketcher.Constraint("Block", 21))
sketch4.addConstraint(Sketcher.Constraint("Block", 22))
sketch4.addConstraint(Sketcher.Constraint("Block", 23))
sketch4.addConstraint(Sketcher.Constraint("Block", 24))
sketch4.addConstraint(Sketcher.Constraint("Coincident", 0, 2, 1, 1))
sketch4.addConstraint(Sketcher.Constraint("Coincident", 1, 2, 2, 1))
sketch4.addConstraint(Sketcher.Constraint("Coincident", 2, 2, 3, 1))
sketch4.addConstraint(Sketcher.Constraint("Coincident", 3, 2, 4, 1))
sketch4.addConstraint(Sketcher.Constraint("Coincident", 4, 2, 5, 1))
sketch4.addConstraint(Sketcher.Constraint("Coincident", 5, 2, 6, 1))
sketch4.addConstraint(Sketcher.Constraint("Coincident", 6, 2, 7, 1))
sketch4.addConstraint(Sketcher.Constraint("Coincident", 7, 2, 8, 1))
sketch4.addConstraint(Sketcher.Constraint("Coincident", 8, 2, 9, 1))
sketch4.addConstraint(Sketcher.Constraint("Coincident", 9, 2, 0, 1))
sketch4.addConstraint(Sketcher.Constraint("Coincident", 10, 2, 11, 1))
sketch4.addConstraint(Sketcher.Constraint("Coincident", 11, 2, 12, 1))
sketch4.addConstraint(Sketcher.Constraint("Coincident", 12, 2, 10, 1))
sketch4.addConstraint(Sketcher.Constraint("Coincident", 13, 2, 14, 1))
sketch4.addConstraint(Sketcher.Constraint("Coincident", 14, 2, 15, 1))
sketch4.addConstraint(Sketcher.Constraint("Coincident", 15, 2, 16, 2))
sketch4.addConstraint(Sketcher.Constraint("Coincident", 19, 1, 20, 1))
sketch4.addConstraint(Sketcher.Constraint("Coincident", 20, 2, 21, 2))
sketch4.addConstraint(Sketcher.Constraint("Coincident", 24, 1, 25, 1))
sketch4.addConstraint(Sketcher.Constraint("Coincident", 25, 2, 26, 1))
sketch4.addConstraint(Sketcher.Constraint("Coincident", 26, 2, 13, 1))
sketch4.addConstraint(Sketcher.Constraint("Horizontal", 0))
sketch4.addConstraint(Sketcher.Constraint("Horizontal", 2))
sketch4.addConstraint(Sketcher.Constraint("Vertical", 3))
sketch4.addConstraint(Sketcher.Constraint("Horizontal", 4))
sketch4.addConstraint(Sketcher.Constraint("Vertical", 5))
sketch4.addConstraint(Sketcher.Constraint("Horizontal", 6))
sketch4.addConstraint(Sketcher.Constraint("Vertical", 7))
sketch4.addConstraint(Sketcher.Constraint("Horizontal", 8))
sketch4.addConstraint(Sketcher.Constraint("Vertical", 9))
sketch4.addConstraint(Sketcher.Constraint("Horizontal", 10))
sketch4.addConstraint(Sketcher.Constraint("Vertical", 12))
sketch4.addConstraint(Sketcher.Constraint("Vertical", 13))
sketch4.addConstraint(Sketcher.Constraint("Horizontal", 14))
sketch4.addConstraint(Sketcher.Constraint("Horizontal", 26))
sketch4.addConstraint(Sketcher.Constraint("DistanceX", 26, 1, 26, 2, Q("1.14984 mm")))
sketch4.addConstraint(Sketcher.Constraint("DistanceX", 9, 2, 25, 2, Q("1.811699 mm")))
sketch4.addConstraint(Sketcher.Constraint("Distance", 15, Q("1.788148 mm")))
sketch4.addConstraint(Sketcher.Constraint("DistanceX", 0, 2, 0, 1, Q("0.177384 mm")))
sketch4.addConstraint(Sketcher.Constraint("DistanceX", 2, 1, 2, 2, Q("1.615385 mm")))
sketch4.addConstraint(Sketcher.Constraint("DistanceX", 4, 1, 4, 2, Q("0.448718 mm")))
sketch4.addConstraint(Sketcher.Constraint("DistanceX", 6, 1, 6, 2, Q("0.403846 mm")))
sketch4.addConstraint(Sketcher.Constraint("DistanceX", 8, 2, 8, 1, Q("0.403846 mm")))
sketch4.addConstraint(Sketcher.Constraint("DistanceX", 10, 2, 10, 1, Q("0.891126 mm")))
sketch4.addConstraint(Sketcher.Constraint("DistanceX", 14, 2, 14, 1, Q("1.517228 mm")))
sketch4.addConstraint(Sketcher.Constraint("DistanceY", 3, 2, 3, 1, Q("0.807692 mm")))
sketch4.addConstraint(Sketcher.Constraint("DistanceY", 5, 1, 5, 2, Q("0.807692 mm")))
sketch4.addConstraint(Sketcher.Constraint("DistanceY", 7, 1, 7, 2, Q("0.403846 mm")))
sketch4.addConstraint(Sketcher.Constraint("DistanceY", 9, 1, 9, 2, Q("2.378205 mm")))
sketch4.addConstraint(Sketcher.Constraint("DistanceY", 12, 2, 12, 1, Q("1.391727 mm")))
sketch4.addConstraint(Sketcher.Constraint("DistanceY", 13, 1, 13, 2, Q("0.403846 mm")))
sketch4.addConstraint(Sketcher.Constraint("DistanceX", -1, 1, 1, 2, Q("5.906169 mm")))
sketch4.addConstraint(Sketcher.Constraint("DistanceY", 7, 2, -1, 1, Q("9.315638 mm")))
sketch4.addConstraint(Sketcher.Constraint("DistanceY", 10, 2, -1, 1, Q("9.315638 mm")))
sketch4.addConstraint(Sketcher.Constraint("DistanceX", 1, 2, 10, 2, Q("0.724259 mm")))
pocket1 = body.newObject("PartDesign::Pocket", "Pocket")
pocket1.Profile = sketch4
pocket1.Length = Q("0.02 in")

doc.recompute()
